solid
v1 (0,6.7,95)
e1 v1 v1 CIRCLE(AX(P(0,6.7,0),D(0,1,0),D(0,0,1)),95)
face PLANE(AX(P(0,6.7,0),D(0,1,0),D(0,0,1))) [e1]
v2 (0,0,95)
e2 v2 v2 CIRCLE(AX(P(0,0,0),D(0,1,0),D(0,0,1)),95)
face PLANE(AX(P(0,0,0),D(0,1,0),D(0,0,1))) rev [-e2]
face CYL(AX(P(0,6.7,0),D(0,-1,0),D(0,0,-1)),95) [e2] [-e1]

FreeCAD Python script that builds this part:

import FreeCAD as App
import Part
import Sketcher

V = App.Vector
Q = App.Units.Quantity

doc = App.newDocument("Part")
params = doc.addObject("Spreadsheet::Sheet", "Params")
for row, (alias, value) in enumerate([
    ("sketch1_diameter", "190 mm"),
    ("pad1_length", "6.7 mm"),
], start=1):
    params.set(f"A{row}", alias)
    params.set(f"B{row}", "=" + value)
    params.setAlias(f"B{row}", alias)

body = doc.addObject("PartDesign::Body", "Body")

# Sketch on XZ plane
sketch1 = doc.addObject("Sketcher::SketchObject", "Sketch")
body.addObject(sketch1)
sketch1.AttachmentSupport = (doc.XZ_Plane, [""])
sketch1.MapMode = "FlatFace"
sketch1.addGeometry(Part.Circle(V(0, 0, 0), V(0, 0, 1), 95), False)
sketch1.addConstraint([
    Sketcher.Constraint("Coincident", 0, 3, -1, 1),
    Sketcher.Constraint("Diameter", 0, Q("190 mm")),
])
sketch1.setExpression("Constraints[1]", "Params.sketch1_diameter")
pad1 = doc.addObject("PartDesign::Pad", "Pad")
body.addObject(pad1)
pad1.Profile = sketch1
pad1.setExpression("Length", "Params.pad1_length")
pad1.Reversed = True

doc.recompute()
